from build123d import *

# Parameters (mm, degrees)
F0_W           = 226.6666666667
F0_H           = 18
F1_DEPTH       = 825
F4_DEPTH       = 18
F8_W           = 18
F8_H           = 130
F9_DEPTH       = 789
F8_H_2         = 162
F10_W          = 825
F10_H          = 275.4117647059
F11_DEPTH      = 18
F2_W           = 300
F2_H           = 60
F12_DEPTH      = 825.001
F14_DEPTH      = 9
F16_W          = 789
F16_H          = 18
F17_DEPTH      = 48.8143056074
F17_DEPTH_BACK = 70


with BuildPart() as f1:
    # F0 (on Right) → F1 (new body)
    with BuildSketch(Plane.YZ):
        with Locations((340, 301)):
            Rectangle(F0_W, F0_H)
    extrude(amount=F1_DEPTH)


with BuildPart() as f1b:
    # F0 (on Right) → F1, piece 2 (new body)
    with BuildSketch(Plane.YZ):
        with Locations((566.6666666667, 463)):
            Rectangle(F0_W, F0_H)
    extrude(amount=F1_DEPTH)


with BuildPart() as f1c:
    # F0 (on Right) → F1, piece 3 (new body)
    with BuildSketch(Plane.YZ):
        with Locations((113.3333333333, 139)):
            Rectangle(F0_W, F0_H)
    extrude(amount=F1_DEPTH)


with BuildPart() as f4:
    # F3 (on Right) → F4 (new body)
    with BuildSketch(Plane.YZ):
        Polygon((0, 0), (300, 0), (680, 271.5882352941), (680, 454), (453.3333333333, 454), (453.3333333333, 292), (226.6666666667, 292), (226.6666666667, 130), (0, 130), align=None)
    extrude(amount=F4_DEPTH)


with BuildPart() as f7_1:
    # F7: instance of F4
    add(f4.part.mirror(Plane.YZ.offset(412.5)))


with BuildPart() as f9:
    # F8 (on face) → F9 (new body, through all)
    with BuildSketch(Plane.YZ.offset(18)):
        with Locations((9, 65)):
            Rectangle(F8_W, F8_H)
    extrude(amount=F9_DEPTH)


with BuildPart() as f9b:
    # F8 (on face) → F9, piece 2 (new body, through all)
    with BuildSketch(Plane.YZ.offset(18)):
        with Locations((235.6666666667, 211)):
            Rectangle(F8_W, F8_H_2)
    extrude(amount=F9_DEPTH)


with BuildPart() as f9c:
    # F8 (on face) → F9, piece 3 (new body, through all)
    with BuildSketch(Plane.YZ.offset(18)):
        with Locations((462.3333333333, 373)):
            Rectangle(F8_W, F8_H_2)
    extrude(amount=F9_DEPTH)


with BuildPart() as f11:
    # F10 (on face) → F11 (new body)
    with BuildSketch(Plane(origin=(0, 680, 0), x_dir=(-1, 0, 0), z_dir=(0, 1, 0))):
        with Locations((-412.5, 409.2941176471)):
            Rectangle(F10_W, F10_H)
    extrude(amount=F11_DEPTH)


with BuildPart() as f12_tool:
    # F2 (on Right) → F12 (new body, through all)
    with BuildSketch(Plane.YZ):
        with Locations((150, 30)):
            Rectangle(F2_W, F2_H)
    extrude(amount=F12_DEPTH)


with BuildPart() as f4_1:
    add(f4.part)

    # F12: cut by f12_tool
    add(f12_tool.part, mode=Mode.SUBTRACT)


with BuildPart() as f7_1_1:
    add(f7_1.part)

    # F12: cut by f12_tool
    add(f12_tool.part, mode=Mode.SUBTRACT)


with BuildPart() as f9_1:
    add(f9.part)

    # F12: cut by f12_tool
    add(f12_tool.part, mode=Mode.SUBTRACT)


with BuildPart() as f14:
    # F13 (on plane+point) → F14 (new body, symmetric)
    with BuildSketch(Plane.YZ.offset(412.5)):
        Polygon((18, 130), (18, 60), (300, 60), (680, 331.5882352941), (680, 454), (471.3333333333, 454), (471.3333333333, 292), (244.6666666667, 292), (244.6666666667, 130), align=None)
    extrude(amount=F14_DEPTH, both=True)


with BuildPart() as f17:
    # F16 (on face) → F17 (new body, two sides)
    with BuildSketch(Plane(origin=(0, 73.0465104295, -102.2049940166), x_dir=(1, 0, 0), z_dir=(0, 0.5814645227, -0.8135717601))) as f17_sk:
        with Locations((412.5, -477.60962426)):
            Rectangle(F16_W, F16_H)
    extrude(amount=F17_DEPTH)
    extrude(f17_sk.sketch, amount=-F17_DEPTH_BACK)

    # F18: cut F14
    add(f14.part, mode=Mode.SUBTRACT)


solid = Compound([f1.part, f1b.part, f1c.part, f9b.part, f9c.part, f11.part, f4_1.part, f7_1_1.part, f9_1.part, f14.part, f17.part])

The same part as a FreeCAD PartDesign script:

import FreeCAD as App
import Part
import Sketcher
from FreeCAD import Vector


def add_polygon(sketch, points):
    """Adds a closed chain of lines whose ends are joined by coincident constraints."""
    first, n = sketch.GeometryCount, len(points)
    for a, b in zip(points, points[1:] + points[:1]):
        sketch.addGeometry(Part.LineSegment(App.Vector(*a, 0), App.Vector(*b, 0)), False)
    for i in range(n):
        sketch.addConstraint(Sketcher.Constraint("Coincident", first + i, 2, first + (i + 1) % n, 1))

doc = App.newDocument("Part")
body = doc.addObject("PartDesign::Body", "Body")

# Sketch on YZ plane
sketch1 = doc.addObject("Sketcher::SketchObject", "Sketch")
body.addObject(sketch1)
sketch1.AttachmentSupport = (doc.YZ_Plane, [""])
sketch1.MapMode = "FlatFace"
add_polygon(sketch1, [(226.666667, 310), (226.666667, 292), (453.333333, 292), (453.333333, 310)])  # lines 0-3
sketch1.addConstraint([
    Sketcher.Constraint("Vertical", 0),
    Sketcher.Constraint("Horizontal", 1),
    Sketcher.Constraint("Vertical", 2),
    Sketcher.Constraint("Horizontal", 3),
    Sketcher.Constraint("DistanceY", 0, 2, 0, 1, 18.0),
    Sketcher.Constraint("DistanceY", -1, 1, 0, 2, 292.0),
    Sketcher.Constraint("DistanceX", 1, 1, 1, 2, 226.666667),
    Sketcher.Constraint("DistanceX", -1, 1, 0, 2, 226.666667),
])
pad1 = doc.addObject("PartDesign::Pad", "Pad")
body.addObject(pad1)
pad1.Profile = sketch1
pad1.Length = 825
body2 = doc.addObject("PartDesign::Body", "Body001")

# Sketch on YZ plane
sketch2 = doc.addObject("Sketcher::SketchObject", "Sketch001")
body2.addObject(sketch2)
sketch2.AttachmentSupport = (doc.getObject("YZ_Plane001"), [""])
sketch2.MapMode = "FlatFace"
add_polygon(sketch2, [(453.333333, 472), (453.333333, 454), (680, 454), (680, 472)])  # lines 0-3
sketch2.addConstraint([
    Sketcher.Constraint("Vertical", 0),
    Sketcher.Constraint("Horizontal", 1),
    Sketcher.Constraint("Vertical", 2),
    Sketcher.Constraint("Horizontal", 3),
    Sketcher.Constraint("DistanceY", 0, 2, 0, 1, 18.0),
    Sketcher.Constraint("DistanceY", -1, 1, 0, 2, 454.0),
    Sketcher.Constraint("DistanceX", -1, 1, 1, 2, 680.0),
    Sketcher.Constraint("DistanceX", 1, 1, 1, 2, 226.666667),
])
pad2 = doc.addObject("PartDesign::Pad", "Pad001")
body2.addObject(pad2)
pad2.Profile = sketch2
pad2.Length = 825
body3 = doc.addObject("PartDesign::Body", "Body002")

# Sketch on YZ plane
sketch3 = doc.addObject("Sketcher::SketchObject", "Sketch002")
body3.addObject(sketch3)
sketch3.AttachmentSupport = (doc.getObject("YZ_Plane002"), [""])
sketch3.MapMode = "FlatFace"
add_polygon(sketch3, [(0, 148), (0, 130), (226.666667, 130), (226.666667, 148)])  # lines 0-3
sketch3.addConstraint([
    Sketcher.Constraint("Vertical", 0),
    Sketcher.Constraint("Horizontal", 1),
    Sketcher.Constraint("Vertical", 2),
    Sketcher.Constraint("Horizontal", 3),
    Sketcher.Constraint("PointOnObject", 0, 2, -2),
    Sketcher.Constraint("DistanceY", 0, 2, 0, 1, 18.0),
    Sketcher.Constraint("DistanceY", -1, 1, 0, 2, 130.0),
    Sketcher.Constraint("DistanceX", 1, 1, 1, 2, 226.666667),
])
pad3 = doc.addObject("PartDesign::Pad", "Pad002")
body3.addObject(pad3)
pad3.Profile = sketch3
pad3.Length = 825
body4 = doc.addObject("PartDesign::Body", "Body003")

# Sketch on YZ plane
sketch4 = doc.addObject("Sketcher::SketchObject", "Sketch003")
body4.addObject(sketch4)
sketch4.AttachmentSupport = (doc.getObject("YZ_Plane003"), [""])
sketch4.MapMode = "FlatFace"
add_polygon(sketch4, [(0, 0), (300, 0), (680, 271.588235), (680, 454), (453.333333, 454), (453.333333, 292), (226.666667, 292), (226.666667, 130), (0, 130)])  # lines 0-8
sketch4.addConstraint([
    Sketcher.Constraint("Horizontal", 0),
    Sketcher.Constraint("Vertical", 2),
    Sketcher.Constraint("Horizontal", 3),
    Sketcher.Constraint("Vertical", 4),
    Sketcher.Constraint("Horizontal", 5),
    Sketcher.Constraint("Vertical", 6),
    Sketcher.Constraint("Horizontal", 7),
    Sketcher.Constraint("Vertical", 8),
    Sketcher.Constraint("Coincident", 8, 2, -1, 1),
    Sketcher.Constraint("Equal", 3, 5),
    Sketcher.Constraint("Equal", 5, 7),
    Sketcher.Constraint("Equal", 4, 6),
    Sketcher.Constraint("DistanceX", 0, 1, 0, 2, 300.0),
    Sketcher.Constraint("DistanceY", 4, 2, 4, 1, 162.0),
    Sketcher.Constraint("DistanceY", 8, 2, 8, 1, 130.0),
    Sketcher.Constraint("DistanceX", -1, 1, 1, 2, 680.0),
    Sketcher.Constraint("DistanceY", 2, 1, 2, 2, 182.411765),
])
pad4 = doc.addObject("PartDesign::Pad", "Pad003")
body4.addObject(pad4)
pad4.Profile = sketch4
pad4.Length = 18
body5 = doc.addObject("PartDesign::Body", "Body004")
doc.recompute()

mirroring = doc.addObject("Part::Mirroring", "Mirroring")
mirroring.Source = body4
mirroring.Base = Vector(412.5, 0, 0)
mirroring.Normal = Vector(1, 0, 0)
body5.BaseFeature = mirroring
doc.recompute()
body6 = doc.addObject("PartDesign::Body", "Body005")

# Sketch on YZ plane
sketch5 = doc.addObject("Sketcher::SketchObject", "Sketch004")
body6.addObject(sketch5)
sketch5.AttachmentSupport = (doc.getObject("YZ_Plane005"), [""])
sketch5.MapMode = "FlatFace"
sketch5.AttachmentOffset = App.Placement(Vector(0, 0, 18), App.Rotation())
add_polygon(sketch5, [(0, 130), (0, 0), (18, 0), (18, 130)])  # lines 0-3
sketch5.addConstraint([
    Sketcher.Constraint("Vertical", 0),
    Sketcher.Constraint("Horizontal", 1),
    Sketcher.Constraint("Vertical", 2),
    Sketcher.Constraint("Horizontal", 3),
    Sketcher.Constraint("Coincident", 0, 2, -1, 1),
    Sketcher.Constraint("DistanceX", 1, 1, 1, 2, 18.0),
    Sketcher.Constraint("DistanceY", 0, 2, 0, 1, 130.0),
])
pad5 = doc.addObject("PartDesign::Pad", "Pad004")
body6.addObject(pad5)
pad5.Profile = sketch5
pad5.Length = 789
body7 = doc.addObject("PartDesign::Body", "Body006")

# Sketch on YZ plane
sketch6 = doc.addObject("Sketcher::SketchObject", "Sketch005")
body7.addObject(sketch6)
sketch6.AttachmentSupport = (doc.getObject("YZ_Plane006"), [""])
sketch6.MapMode = "FlatFace"
sketch6.AttachmentOffset = App.Placement(Vector(0, 0, 18), App.Rotation())
add_polygon(sketch6, [(226.666667, 292), (226.666667, 130), (244.666667, 130), (244.666667, 292)])  # lines 0-3
sketch6.addConstraint([
    Sketcher.Constraint("Vertical", 0),
    Sketcher.Constraint("Horizontal", 1),
    Sketcher.Constraint("Vertical", 2),
    Sketcher.Constraint("Horizontal", 3),
    Sketcher.Constraint("DistanceX", 1, 1, 1, 2, 18.0),
    Sketcher.Constraint("DistanceY", 0, 2, 0, 1, 162.0),
    Sketcher.Constraint("DistanceY", -1, 1, 0, 2, 130.0),
    Sketcher.Constraint("DistanceX", -1, 1, 0, 2, 226.666667),
])
pad6 = doc.addObject("PartDesign::Pad", "Pad005")
body7.addObject(pad6)
pad6.Profile = sketch6
pad6.Length = 789
body8 = doc.addObject("PartDesign::Body", "Body007")

# Sketch on YZ plane
sketch7 = doc.addObject("Sketcher::SketchObject", "Sketch006")
body8.addObject(sketch7)
sketch7.AttachmentSupport = (doc.getObject("YZ_Plane007"), [""])
sketch7.MapMode = "FlatFace"
sketch7.AttachmentOffset = App.Placement(Vector(0, 0, 18), App.Rotation())
add_polygon(sketch7, [(453.333333, 454), (453.333333, 292), (471.333333, 292), (471.333333, 454)])  # lines 0-3
sketch7.addConstraint([
    Sketcher.Constraint("Vertical", 0),
    Sketcher.Constraint("Horizontal", 1),
    Sketcher.Constraint("Vertical", 2),
    Sketcher.Constraint("Horizontal", 3),
    Sketcher.Constraint("DistanceX", 1, 1, 1, 2, 18.0),
    Sketcher.Constraint("DistanceY", 0, 2, 0, 1, 162.0),
    Sketcher.Constraint("DistanceY", -1, 1, 0, 2, 292.0),
    Sketcher.Constraint("DistanceX", -1, 1, 0, 2, 453.333333),
])
pad7 = doc.addObject("PartDesign::Pad", "Pad006")
body8.addObject(pad7)
pad7.Profile = sketch7
pad7.Length = 789
body9 = doc.addObject("PartDesign::Body", "Body008")

# Sketch on XZ plane
sketch8 = doc.addObject("Sketcher::SketchObject", "Sketch007")
body9.addObject(sketch8)
sketch8.AttachmentSupport = (doc.getObject("XZ_Plane008"), [""])
sketch8.MapMode = "FlatFace"
sketch8.AttachmentOffset = App.Placement(Vector(0, 0, -680), App.Rotation())
add_polygon(sketch8, [(825, 547), (825, 271.588235), (0, 271.588235), (0, 547)])  # lines 0-3
sketch8.addConstraint([
    Sketcher.Constraint("Vertical", 0),
    Sketcher.Constraint("Horizontal", 1),
    Sketcher.Constraint("Vertical", 2),
    Sketcher.Constraint("Horizontal", 3),
    Sketcher.Constraint("PointOnObject", 1, 2, -2),
    Sketcher.Constraint("DistanceX", 1, 2, 1, 1, 825.0),
    Sketcher.Constraint("DistanceY", -1, 1, 2, 2, 547.0),
    Sketcher.Constraint("DistanceY", 0, 2, 0, 1, 275.411765),
])
pad8 = doc.addObject("PartDesign::Pad", "Pad007")
body9.addObject(pad8)
pad8.Profile = sketch8
pad8.Length = 18
pad8.Reversed = True
body10 = doc.addObject("PartDesign::Body", "Body009")

# Sketch on YZ plane
sketch9 = doc.addObject("Sketcher::SketchObject", "Sketch008")
body10.addObject(sketch9)
sketch9.AttachmentSupport = (doc.getObject("YZ_Plane009"), [""])
sketch9.MapMode = "FlatFace"
add_polygon(sketch9, [(0, 60), (0, 0), (300, 0), (300, 60)])  # lines 0-3
sketch9.addConstraint([
    Sketcher.Constraint("Vertical", 0),
    Sketcher.Constraint("Horizontal", 1),
    Sketcher.Constraint("Vertical", 2),
    Sketcher.Constraint("Horizontal", 3),
    Sketcher.Constraint("Coincident", 0, 2, -1, 1),
    Sketcher.Constraint("DistanceX", 1, 1, 1, 2, 300.0),
    Sketcher.Constraint("DistanceY", 0, 2, 0, 1, 60.0),
])
pad9 = doc.addObject("PartDesign::Pad", "Pad008")
body10.addObject(pad9)
pad9.Profile = sketch9
pad9.Length = 825.001
doc.recompute()

body11 = doc.addObject("PartDesign::Body", "Body010")
body11.BaseFeature = body10
boolean = doc.addObject("PartDesign::Boolean", "Boolean")
body4.addObject(boolean)
boolean.Type = "Cut"
boolean.addObjects([body11])
doc.recompute()

body12 = doc.addObject("PartDesign::Body", "Body011")
body12.BaseFeature = body10
boolean2 = doc.addObject("PartDesign::Boolean", "Boolean001")
body5.addObject(boolean2)
boolean2.Type = "Cut"
boolean2.addObjects([body12])
doc.recompute()

boolean3 = doc.addObject("PartDesign::Boolean", "Boolean002")
body6.addObject(boolean3)
boolean3.Type = "Cut"
boolean3.addObjects([body10])
body13 = doc.addObject("PartDesign::Body", "Body012")

# Sketch on YZ plane
sketch10 = doc.addObject("Sketcher::SketchObject", "Sketch009")
body13.addObject(sketch10)
sketch10.AttachmentSupport = (doc.getObject("YZ_Plane012"), [""])
sketch10.MapMode = "FlatFace"
sketch10.AttachmentOffset = App.Placement(Vector(0, 0, 412.5), App.Rotation())
add_polygon(sketch10, [(18, 130), (18, 60), (300, 60), (680, 331.588235), (680, 454), (471.333333, 454), (471.333333, 292), (244.666667, 292), (244.666667, 130)])  # lines 0-8
sketch10.addConstraint([
    Sketcher.Constraint("Vertical", 0),
    Sketcher.Constraint("Horizontal", 1),
    Sketcher.Constraint("Vertical", 3),
    Sketcher.Constraint("Horizontal", 4),
    Sketcher.Constraint("Vertical", 5),
    Sketcher.Constraint("Horizontal", 6),
    Sketcher.Constraint("Vertical", 7),
    Sketcher.Constraint("Horizontal", 8),
    Sketcher.Constraint("Equal", 6, 8),
    Sketcher.Constraint("Equal", 5, 7),
    Sketcher.Constraint("DistanceX", 1, 1, 1, 2, 282.0),
    Sketcher.Constraint("DistanceY", 0, 2, 0, 1, 70.0),
    Sketcher.Constraint("DistanceY", 5, 2, 5, 1, 162.0),
    Sketcher.Constraint("DistanceX", -1, 1, 0, 2, 18.0),
    Sketcher.Constraint("DistanceY", -1, 1, 0, 2, 60.0),
    Sketcher.Constraint("DistanceX", -1, 1, 2, 2, 680.0),
    Sketcher.Constraint("DistanceX", 4, 2, 4, 1, 208.666667),
    Sketcher.Constraint("DistanceY", 3, 1, 3, 2, 122.411765),
])
pad10 = doc.addObject("PartDesign::Pad", "Pad009")
body13.addObject(pad10)
pad10.Profile = sketch10
pad10.Length = 18
pad10.Midplane = True
body14 = doc.addObject("PartDesign::Body", "Body013")

# Sketch on an angled plane
sketch11 = doc.addObject("Sketcher::SketchObject", "Sketch010")
body14.addObject(sketch11)
sketch11.Placement = App.Placement(Vector(0, 73.04651, -102.204994), App.Rotation(Vector(1, 0, 0), Vector(0, -0.81357176, -0.581464523), Vector(0, 0.581464523, -0.81357176), "ZXY"))
add_polygon(sketch11, [(18, -468.609624), (18, -486.609624), (807, -486.609624), (807, -468.609624)])  # lines 0-3
sketch11.addConstraint([
    Sketcher.Constraint("Vertical", 0),
    Sketcher.Constraint("Horizontal", 1),
    Sketcher.Constraint("Vertical", 2),
    Sketcher.Constraint("Horizontal", 3),
    Sketcher.Constraint("DistanceX", 1, 1, 1, 2, 789.0),
    Sketcher.Constraint("DistanceY", 0, 2, 0, 1, 18.0),
    Sketcher.Constraint("DistanceX", -1, 1, 0, 2, 18.0),
    Sketcher.Constraint("DistanceY", 0, 2, -1, 1, 486.609624),
])
pad11 = doc.addObject("PartDesign::Pad", "Pad010")
body14.addObject(pad11)
pad11.Profile = sketch11
pad11.Type = "TwoLengths"
pad11.Length = 48.814306
pad11.Length2 = 70
doc.recompute()

body15 = doc.addObject("PartDesign::Body", "Body014")
body15.BaseFeature = body13
boolean4 = doc.addObject("PartDesign::Boolean", "Boolean003")
body14.addObject(boolean4)
boolean4.Type = "Cut"
boolean4.addObjects([body15])
doc.recompute()

doc.recompute()
